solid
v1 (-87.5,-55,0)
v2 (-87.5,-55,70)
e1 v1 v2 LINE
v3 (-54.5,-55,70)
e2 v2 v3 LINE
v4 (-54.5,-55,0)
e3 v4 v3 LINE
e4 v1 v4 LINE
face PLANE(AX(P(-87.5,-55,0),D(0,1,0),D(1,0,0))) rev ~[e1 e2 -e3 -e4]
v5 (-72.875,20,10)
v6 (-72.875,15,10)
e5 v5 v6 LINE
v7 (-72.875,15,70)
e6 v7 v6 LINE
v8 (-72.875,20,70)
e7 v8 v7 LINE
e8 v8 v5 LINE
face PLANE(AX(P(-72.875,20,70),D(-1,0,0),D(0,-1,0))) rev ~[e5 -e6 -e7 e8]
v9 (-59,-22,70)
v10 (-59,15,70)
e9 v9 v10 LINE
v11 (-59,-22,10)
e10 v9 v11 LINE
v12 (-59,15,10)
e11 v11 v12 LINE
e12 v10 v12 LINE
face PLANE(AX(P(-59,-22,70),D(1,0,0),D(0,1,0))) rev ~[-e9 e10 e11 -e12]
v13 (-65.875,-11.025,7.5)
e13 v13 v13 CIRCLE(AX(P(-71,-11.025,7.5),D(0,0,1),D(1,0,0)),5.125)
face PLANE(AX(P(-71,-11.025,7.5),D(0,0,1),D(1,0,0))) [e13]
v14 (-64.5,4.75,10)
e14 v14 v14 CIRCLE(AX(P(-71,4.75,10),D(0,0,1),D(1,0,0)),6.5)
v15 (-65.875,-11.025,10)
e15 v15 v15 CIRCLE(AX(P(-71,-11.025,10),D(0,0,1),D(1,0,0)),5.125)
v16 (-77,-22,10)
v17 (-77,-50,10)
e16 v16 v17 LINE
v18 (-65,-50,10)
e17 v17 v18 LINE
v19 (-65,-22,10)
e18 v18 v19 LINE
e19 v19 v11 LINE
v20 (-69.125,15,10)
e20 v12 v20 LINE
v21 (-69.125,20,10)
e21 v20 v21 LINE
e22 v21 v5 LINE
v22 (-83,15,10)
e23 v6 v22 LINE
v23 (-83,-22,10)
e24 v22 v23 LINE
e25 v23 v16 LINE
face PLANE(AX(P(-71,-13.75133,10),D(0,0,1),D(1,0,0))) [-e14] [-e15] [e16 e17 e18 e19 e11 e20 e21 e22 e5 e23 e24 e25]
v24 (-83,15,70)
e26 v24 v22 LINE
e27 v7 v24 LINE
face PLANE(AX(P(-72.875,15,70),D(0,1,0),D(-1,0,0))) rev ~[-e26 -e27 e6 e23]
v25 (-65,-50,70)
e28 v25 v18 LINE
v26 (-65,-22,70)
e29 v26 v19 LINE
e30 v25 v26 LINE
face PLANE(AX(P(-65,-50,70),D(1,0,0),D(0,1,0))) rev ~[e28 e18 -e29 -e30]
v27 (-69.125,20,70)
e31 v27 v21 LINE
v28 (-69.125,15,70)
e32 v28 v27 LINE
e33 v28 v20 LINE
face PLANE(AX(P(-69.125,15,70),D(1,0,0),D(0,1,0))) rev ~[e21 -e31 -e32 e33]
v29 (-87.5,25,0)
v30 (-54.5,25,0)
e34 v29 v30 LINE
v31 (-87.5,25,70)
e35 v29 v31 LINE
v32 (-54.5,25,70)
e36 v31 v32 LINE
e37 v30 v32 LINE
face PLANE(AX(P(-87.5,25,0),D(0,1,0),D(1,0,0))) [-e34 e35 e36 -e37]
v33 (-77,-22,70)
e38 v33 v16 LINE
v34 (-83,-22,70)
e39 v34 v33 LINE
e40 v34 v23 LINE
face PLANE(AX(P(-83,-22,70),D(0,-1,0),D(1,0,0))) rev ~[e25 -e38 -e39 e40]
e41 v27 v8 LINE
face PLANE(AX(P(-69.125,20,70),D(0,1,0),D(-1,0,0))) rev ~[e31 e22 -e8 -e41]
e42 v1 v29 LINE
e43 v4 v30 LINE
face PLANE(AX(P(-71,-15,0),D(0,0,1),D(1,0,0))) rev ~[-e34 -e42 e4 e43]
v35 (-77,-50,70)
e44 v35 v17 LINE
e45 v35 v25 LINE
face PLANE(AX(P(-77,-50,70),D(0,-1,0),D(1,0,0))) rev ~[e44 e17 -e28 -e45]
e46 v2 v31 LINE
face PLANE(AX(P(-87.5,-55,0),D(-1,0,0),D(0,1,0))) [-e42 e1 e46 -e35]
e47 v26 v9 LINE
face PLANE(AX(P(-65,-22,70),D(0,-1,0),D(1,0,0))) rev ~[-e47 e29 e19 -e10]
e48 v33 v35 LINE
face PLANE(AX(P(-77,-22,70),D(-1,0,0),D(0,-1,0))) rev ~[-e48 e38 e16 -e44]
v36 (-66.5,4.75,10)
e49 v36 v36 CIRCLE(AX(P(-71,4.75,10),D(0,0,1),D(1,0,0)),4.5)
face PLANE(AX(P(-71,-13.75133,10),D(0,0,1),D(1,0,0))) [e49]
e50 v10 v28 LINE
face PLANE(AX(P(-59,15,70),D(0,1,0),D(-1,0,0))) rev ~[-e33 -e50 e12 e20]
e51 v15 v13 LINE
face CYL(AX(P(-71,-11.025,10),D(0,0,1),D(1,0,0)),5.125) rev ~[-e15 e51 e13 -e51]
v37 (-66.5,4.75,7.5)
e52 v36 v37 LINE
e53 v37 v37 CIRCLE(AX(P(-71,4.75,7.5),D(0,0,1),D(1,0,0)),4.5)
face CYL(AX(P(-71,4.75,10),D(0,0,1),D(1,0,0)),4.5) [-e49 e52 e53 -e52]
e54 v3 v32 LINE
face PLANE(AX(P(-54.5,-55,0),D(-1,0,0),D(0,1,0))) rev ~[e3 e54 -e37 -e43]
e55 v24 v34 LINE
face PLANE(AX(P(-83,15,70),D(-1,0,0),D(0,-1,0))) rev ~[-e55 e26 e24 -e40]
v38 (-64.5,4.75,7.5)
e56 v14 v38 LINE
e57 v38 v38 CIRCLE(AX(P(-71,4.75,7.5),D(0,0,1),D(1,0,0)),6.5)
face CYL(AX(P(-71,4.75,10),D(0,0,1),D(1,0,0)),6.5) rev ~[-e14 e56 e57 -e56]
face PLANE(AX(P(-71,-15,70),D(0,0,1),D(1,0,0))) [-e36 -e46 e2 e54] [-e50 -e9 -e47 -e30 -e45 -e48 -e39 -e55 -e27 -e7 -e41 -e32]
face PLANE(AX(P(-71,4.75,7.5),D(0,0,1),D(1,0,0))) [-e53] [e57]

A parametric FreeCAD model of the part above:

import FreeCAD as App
import Part
import Sketcher

V = App.Vector


def add_polygon(sketch, points):
    """Adds a closed chain of lines whose ends are joined by coincident constraints."""
    first, n = sketch.GeometryCount, len(points)
    for a, b in zip(points, points[1:] + points[:1]):
        sketch.addGeometry(Part.LineSegment(App.Vector(*a, 0), App.Vector(*b, 0)), False)
    for i in range(n):
        sketch.addConstraint(Sketcher.Constraint("Coincident", first + i, 2, first + (i + 1) % n, 1))

doc = App.newDocument("Part")
body = doc.addObject("PartDesign::Body", "Body")

# Sketch on XY plane
sketch1 = body.newObject("Sketcher::SketchObject", "Sketch")
sketch1.AttachmentSupport = (doc.getObject("XY_Plane"), [""])
sketch1.MapMode = "FlatFace"
add_polygon(sketch1, [(-88, 25), (-88, -55), (-54, -55), (-54, 25)])  # lines 0-3
sketch1.addConstraint(Sketcher.Constraint("Vertical", 0))
sketch1.addConstraint(Sketcher.Constraint("Horizontal", 1))
sketch1.addConstraint(Sketcher.Constraint("Vertical", 2))
sketch1.addConstraint(Sketcher.Constraint("Horizontal", 3))
sketch1.addConstraint(Sketcher.Constraint("DistanceX", 1, 1, 1, 2, 33.0))
sketch1.addConstraint(Sketcher.Constraint("DistanceY", 0, 2, 0, 1, 80.0))
sketch1.addConstraint(Sketcher.Constraint("DistanceY", 0, 2, -1, 1, 55.0))
sketch1.addConstraint(Sketcher.Constraint("DistanceX", 0, 2, -1, 1, 87.5))
pad1 = body.newObject("PartDesign::Pad", "Pad")
pad1.Profile = sketch1
pad1.Length = 70

# Sketch on XY plane
sketch2 = body.newObject("Sketcher::SketchObject", "Sketch001")
sketch2.AttachmentSupport = (doc.getObject("XY_Plane"), [""])
sketch2.MapMode = "FlatFace"
sketch2.AttachmentOffset = App.Placement(V(0, 0, 70), App.Rotation())
add_polygon(sketch2, [(-72.9, 20), (-72.9, 15), (-83, 15), (-83, -22), (-77, -22), (-77, -50), (-65, -50), (-65, -22), (-59, -22), (-59, 15), (-69.1, 15), (-69.1, 20)])  # lines 0-11
sketch2.addConstraint(Sketcher.Constraint("Vertical", 0))
sketch2.addConstraint(Sketcher.Constraint("Horizontal", 1))
sketch2.addConstraint(Sketcher.Constraint("Vertical", 2))
sketch2.addConstraint(Sketcher.Constraint("Horizontal", 3))
sketch2.addConstraint(Sketcher.Constraint("Vertical", 4))
sketch2.addConstraint(Sketcher.Constraint("Horizontal", 5))
sketch2.addConstraint(Sketcher.Constraint("Vertical", 6))
sketch2.addConstraint(Sketcher.Constraint("Horizontal", 7))
sketch2.addConstraint(Sketcher.Constraint("Vertical", 8))
sketch2.addConstraint(Sketcher.Constraint("Horizontal", 9))
sketch2.addConstraint(Sketcher.Constraint("Vertical", 10))
sketch2.addConstraint(Sketcher.Constraint("Horizontal", 11))
sketch2.addConstraint(Sketcher.Constraint("Horizontal", 3, 2, 6, 2))
sketch2.addConstraint(Sketcher.Constraint("Horizontal", 1, 2, 8, 2))
sketch2.addConstraint(Sketcher.Constraint("Equal", 3, 7))
sketch2.addConstraint(Sketcher.Constraint("Equal", 1, 9))
sketch2.addConstraint(Sketcher.Constraint("DistanceX", 3, 1, 3, 2, 6.0))
sketch2.addConstraint(Sketcher.Constraint("DistanceX", 5, 1, 5, 2, 12.0))
sketch2.addConstraint(Sketcher.Constraint("DistanceY", 0, 2, 0, 1, 5.0))
sketch2.addConstraint(Sketcher.Constraint("DistanceY", 2, 2, 2, 1, 37.0))
sketch2.addConstraint(Sketcher.Constraint("DistanceY", 4, 2, 4, 1, 28.0))
sketch2.addConstraint(Sketcher.Constraint("DistanceY", -1, 1, 0, 2, 15.0))
sketch2.addConstraint(Sketcher.Constraint("DistanceX", 1, 2, -1, 1, 83.0))
sketch2.addConstraint(Sketcher.Constraint("DistanceX", 11, 2, 11, 1, 3.75))
pocket1 = body.newObject("PartDesign::Pocket", "Pocket")
pocket1.Profile = sketch2
pocket1.Length = 60

# Sketch on XY plane
sketch3 = body.newObject("Sketcher::SketchObject", "Sketch002")
sketch3.AttachmentSupport = (doc.getObject("XY_Plane"), [""])
sketch3.MapMode = "FlatFace"
sketch3.AttachmentOffset = App.Placement(V(0, 0, 10), App.Rotation())
sketch3.addGeometry(Part.Circle(V(-71, 4.8, 0), V(0, 0, 1), 6.5), False)
sketch3.addGeometry(Part.Circle(V(-71, 4.8, 0), V(0, 0, 1), 4.5), False)
sketch3.addGeometry(Part.Circle(V(-71, -11, 0), V(0, 0, 1), 5.1), False)
sketch3.addConstraint(Sketcher.Constraint("Coincident", 1, 3, 0, 3))
sketch3.addConstraint(Sketcher.Constraint("Vertical", 1, 3, 2, 3))
sketch3.addConstraint(Sketcher.Constraint("Diameter", 0, 13.0))
sketch3.addConstraint(Sketcher.Constraint("Diameter", 1, 9.0))
sketch3.addConstraint(Sketcher.Constraint("Diameter", 2, 10.25))
sketch3.addConstraint(Sketcher.Constraint("DistanceX", 0, 3, -1, 1, 71.0))
sketch3.addConstraint(Sketcher.Constraint("DistanceY", -1, 1, 0, 3, 4.75))
sketch3.addConstraint(Sketcher.Constraint("DistanceY", 2, 3, -1, 1, 11.025))
pocket2 = body.newObject("PartDesign::Pocket", "Pocket001")
pocket2.Profile = sketch3
pocket2.Length = 2.5

doc.recompute()
